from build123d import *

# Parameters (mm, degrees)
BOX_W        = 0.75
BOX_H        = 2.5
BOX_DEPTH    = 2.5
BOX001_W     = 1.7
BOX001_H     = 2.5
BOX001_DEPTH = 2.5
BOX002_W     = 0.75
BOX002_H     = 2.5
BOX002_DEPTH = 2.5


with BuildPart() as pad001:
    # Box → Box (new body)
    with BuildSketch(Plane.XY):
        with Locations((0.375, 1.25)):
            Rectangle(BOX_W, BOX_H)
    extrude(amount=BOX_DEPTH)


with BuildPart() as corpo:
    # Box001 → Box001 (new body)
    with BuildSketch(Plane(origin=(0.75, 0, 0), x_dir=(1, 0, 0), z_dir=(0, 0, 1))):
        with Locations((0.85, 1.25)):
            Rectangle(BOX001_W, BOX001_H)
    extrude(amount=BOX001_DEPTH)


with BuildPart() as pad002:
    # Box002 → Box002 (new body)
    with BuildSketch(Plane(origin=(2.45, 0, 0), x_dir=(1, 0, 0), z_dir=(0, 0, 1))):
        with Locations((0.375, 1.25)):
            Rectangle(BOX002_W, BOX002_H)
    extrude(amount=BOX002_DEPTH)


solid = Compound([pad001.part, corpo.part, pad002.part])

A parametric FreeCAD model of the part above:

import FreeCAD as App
import Part
import Sketcher
Q = App.Units.Quantity

doc = App.newDocument("Part")
body = doc.addObject("PartDesign::Body", "Body")

sketch1 = body.newObject("Sketcher::SketchObject", "Sketch")
sketch1.AttachmentSupport = (doc.getObject("XY_Plane"), [""])
sketch1.MapMode = "FlatFace"
sketch1.addGeometry(Part.LineSegment(App.Vector(0, 2.5, 0), App.Vector(0, 0, 0)), False)
sketch1.addGeometry(Part.LineSegment(App.Vector(0, 0, 0), App.Vector(0.75, 0, 0)), False)
sketch1.addGeometry(Part.LineSegment(App.Vector(0.75, 0, 0), App.Vector(0.75, 2.5, 0)), False)
sketch1.addGeometry(Part.LineSegment(App.Vector(0.75, 2.5, 0), App.Vector(0, 2.5, 0)), False)
sketch1.addConstraint(Sketcher.Constraint("Coincident", 0, 2, 1, 1))
sketch1.addConstraint(Sketcher.Constraint("Coincident", 1, 2, 2, 1))
sketch1.addConstraint(Sketcher.Constraint("Coincident", 2, 2, 3, 1))
sketch1.addConstraint(Sketcher.Constraint("Coincident", 3, 2, 0, 1))
sketch1.addConstraint(Sketcher.Constraint("Vertical", 0))
sketch1.addConstraint(Sketcher.Constraint("Horizontal", 1))
sketch1.addConstraint(Sketcher.Constraint("Vertical", 2))
sketch1.addConstraint(Sketcher.Constraint("Horizontal", 3))
sketch1.addConstraint(Sketcher.Constraint("Coincident", 0, 2, -1, 1))
sketch1.addConstraint(Sketcher.Constraint("DistanceY", 0, 2, 0, 1, Q("2.5 mm")))
sketch1.addConstraint(Sketcher.Constraint("DistanceX", 1, 1, 1, 2, Q("0.75 mm")))
pad1 = body.newObject("PartDesign::Pad", "Pad")
pad1.Profile = sketch1
pad1.Length = 2.5
body2 = doc.addObject("PartDesign::Body", "Body001")

sketch2 = body2.newObject("Sketcher::SketchObject", "Sketch001")
sketch2.AttachmentSupport = (doc.getObject("XY_Plane001"), [""])
sketch2.MapMode = "FlatFace"
sketch2.addGeometry(Part.LineSegment(App.Vector(0.75, 2.5, 0), App.Vector(0.75, 0, 0)), False)
sketch2.addGeometry(Part.LineSegment(App.Vector(0.75, 0, 0), App.Vector(2.45, 0, 0)), False)
sketch2.addGeometry(Part.LineSegment(App.Vector(2.45, 0, 0), App.Vector(2.45, 2.5, 0)), False)
sketch2.addGeometry(Part.LineSegment(App.Vector(2.45, 2.5, 0), App.Vector(0.75, 2.5, 0)), False)
sketch2.addConstraint(Sketcher.Constraint("Coincident", 0, 2, 1, 1))
sketch2.addConstraint(Sketcher.Constraint("Coincident", 1, 2, 2, 1))
sketch2.addConstraint(Sketcher.Constraint("Coincident", 2, 2, 3, 1))
sketch2.addConstraint(Sketcher.Constraint("Coincident", 3, 2, 0, 1))
sketch2.addConstraint(Sketcher.Constraint("Vertical", 0))
sketch2.addConstraint(Sketcher.Constraint("Horizontal", 1))
sketch2.addConstraint(Sketcher.Constraint("Vertical", 2))
sketch2.addConstraint(Sketcher.Constraint("Horizontal", 3))
sketch2.addConstraint(Sketcher.Constraint("PointOnObject", 0, 2, -1))
sketch2.addConstraint(Sketcher.Constraint("DistanceX", 1, 1, 1, 2, Q("1.7 mm")))
sketch2.addConstraint(Sketcher.Constraint("DistanceY", 0, 2, 0, 1, Q("2.5 mm")))
sketch2.addConstraint(Sketcher.Constraint("DistanceX", -1, 1, 0, 2, Q("0.75 mm")))
pad2 = body2.newObject("PartDesign::Pad", "Pad001")
pad2.Profile = sketch2
pad2.Length = 2.5
body3 = doc.addObject("PartDesign::Body", "Body002")

sketch3 = body3.newObject("Sketcher::SketchObject", "Sketch002")
sketch3.AttachmentSupport = (doc.getObject("XY_Plane002"), [""])
sketch3.MapMode = "FlatFace"
sketch3.addGeometry(Part.LineSegment(App.Vector(2.45, 2.5, 0), App.Vector(2.45, 0, 0)), False)
sketch3.addGeometry(Part.LineSegment(App.Vector(2.45, 0, 0), App.Vector(3.2, 0, 0)), False)
sketch3.addGeometry(Part.LineSegment(App.Vector(3.2, 0, 0), App.Vector(3.2, 2.5, 0)), False)
sketch3.addGeometry(Part.LineSegment(App.Vector(3.2, 2.5, 0), App.Vector(2.45, 2.5, 0)), False)
sketch3.addConstraint(Sketcher.Constraint("Coincident", 0, 2, 1, 1))
sketch3.addConstraint(Sketcher.Constraint("Coincident", 1, 2, 2, 1))
sketch3.addConstraint(Sketcher.Constraint("Coincident", 2, 2, 3, 1))
sketch3.addConstraint(Sketcher.Constraint("Coincident", 3, 2, 0, 1))
sketch3.addConstraint(Sketcher.Constraint("Vertical", 0))
sketch3.addConstraint(Sketcher.Constraint("Horizontal", 1))
sketch3.addConstraint(Sketcher.Constraint("Vertical", 2))
sketch3.addConstraint(Sketcher.Constraint("Horizontal", 3))
sketch3.addConstraint(Sketcher.Constraint("PointOnObject", 0, 2, -1))
sketch3.addConstraint(Sketcher.Constraint("DistanceY", 0, 2, 0, 1, Q("2.5 mm")))
sketch3.addConstraint(Sketcher.Constraint("DistanceX", 1, 1, 1, 2, Q("0.75 mm")))
sketch3.addConstraint(Sketcher.Constraint("DistanceX", -1, 1, 1, 2, Q("3.2 mm")))
pad3 = body3.newObject("PartDesign::Pad", "Pad002")
pad3.Profile = sketch3
pad3.Length = 2.5

doc.recompute()
